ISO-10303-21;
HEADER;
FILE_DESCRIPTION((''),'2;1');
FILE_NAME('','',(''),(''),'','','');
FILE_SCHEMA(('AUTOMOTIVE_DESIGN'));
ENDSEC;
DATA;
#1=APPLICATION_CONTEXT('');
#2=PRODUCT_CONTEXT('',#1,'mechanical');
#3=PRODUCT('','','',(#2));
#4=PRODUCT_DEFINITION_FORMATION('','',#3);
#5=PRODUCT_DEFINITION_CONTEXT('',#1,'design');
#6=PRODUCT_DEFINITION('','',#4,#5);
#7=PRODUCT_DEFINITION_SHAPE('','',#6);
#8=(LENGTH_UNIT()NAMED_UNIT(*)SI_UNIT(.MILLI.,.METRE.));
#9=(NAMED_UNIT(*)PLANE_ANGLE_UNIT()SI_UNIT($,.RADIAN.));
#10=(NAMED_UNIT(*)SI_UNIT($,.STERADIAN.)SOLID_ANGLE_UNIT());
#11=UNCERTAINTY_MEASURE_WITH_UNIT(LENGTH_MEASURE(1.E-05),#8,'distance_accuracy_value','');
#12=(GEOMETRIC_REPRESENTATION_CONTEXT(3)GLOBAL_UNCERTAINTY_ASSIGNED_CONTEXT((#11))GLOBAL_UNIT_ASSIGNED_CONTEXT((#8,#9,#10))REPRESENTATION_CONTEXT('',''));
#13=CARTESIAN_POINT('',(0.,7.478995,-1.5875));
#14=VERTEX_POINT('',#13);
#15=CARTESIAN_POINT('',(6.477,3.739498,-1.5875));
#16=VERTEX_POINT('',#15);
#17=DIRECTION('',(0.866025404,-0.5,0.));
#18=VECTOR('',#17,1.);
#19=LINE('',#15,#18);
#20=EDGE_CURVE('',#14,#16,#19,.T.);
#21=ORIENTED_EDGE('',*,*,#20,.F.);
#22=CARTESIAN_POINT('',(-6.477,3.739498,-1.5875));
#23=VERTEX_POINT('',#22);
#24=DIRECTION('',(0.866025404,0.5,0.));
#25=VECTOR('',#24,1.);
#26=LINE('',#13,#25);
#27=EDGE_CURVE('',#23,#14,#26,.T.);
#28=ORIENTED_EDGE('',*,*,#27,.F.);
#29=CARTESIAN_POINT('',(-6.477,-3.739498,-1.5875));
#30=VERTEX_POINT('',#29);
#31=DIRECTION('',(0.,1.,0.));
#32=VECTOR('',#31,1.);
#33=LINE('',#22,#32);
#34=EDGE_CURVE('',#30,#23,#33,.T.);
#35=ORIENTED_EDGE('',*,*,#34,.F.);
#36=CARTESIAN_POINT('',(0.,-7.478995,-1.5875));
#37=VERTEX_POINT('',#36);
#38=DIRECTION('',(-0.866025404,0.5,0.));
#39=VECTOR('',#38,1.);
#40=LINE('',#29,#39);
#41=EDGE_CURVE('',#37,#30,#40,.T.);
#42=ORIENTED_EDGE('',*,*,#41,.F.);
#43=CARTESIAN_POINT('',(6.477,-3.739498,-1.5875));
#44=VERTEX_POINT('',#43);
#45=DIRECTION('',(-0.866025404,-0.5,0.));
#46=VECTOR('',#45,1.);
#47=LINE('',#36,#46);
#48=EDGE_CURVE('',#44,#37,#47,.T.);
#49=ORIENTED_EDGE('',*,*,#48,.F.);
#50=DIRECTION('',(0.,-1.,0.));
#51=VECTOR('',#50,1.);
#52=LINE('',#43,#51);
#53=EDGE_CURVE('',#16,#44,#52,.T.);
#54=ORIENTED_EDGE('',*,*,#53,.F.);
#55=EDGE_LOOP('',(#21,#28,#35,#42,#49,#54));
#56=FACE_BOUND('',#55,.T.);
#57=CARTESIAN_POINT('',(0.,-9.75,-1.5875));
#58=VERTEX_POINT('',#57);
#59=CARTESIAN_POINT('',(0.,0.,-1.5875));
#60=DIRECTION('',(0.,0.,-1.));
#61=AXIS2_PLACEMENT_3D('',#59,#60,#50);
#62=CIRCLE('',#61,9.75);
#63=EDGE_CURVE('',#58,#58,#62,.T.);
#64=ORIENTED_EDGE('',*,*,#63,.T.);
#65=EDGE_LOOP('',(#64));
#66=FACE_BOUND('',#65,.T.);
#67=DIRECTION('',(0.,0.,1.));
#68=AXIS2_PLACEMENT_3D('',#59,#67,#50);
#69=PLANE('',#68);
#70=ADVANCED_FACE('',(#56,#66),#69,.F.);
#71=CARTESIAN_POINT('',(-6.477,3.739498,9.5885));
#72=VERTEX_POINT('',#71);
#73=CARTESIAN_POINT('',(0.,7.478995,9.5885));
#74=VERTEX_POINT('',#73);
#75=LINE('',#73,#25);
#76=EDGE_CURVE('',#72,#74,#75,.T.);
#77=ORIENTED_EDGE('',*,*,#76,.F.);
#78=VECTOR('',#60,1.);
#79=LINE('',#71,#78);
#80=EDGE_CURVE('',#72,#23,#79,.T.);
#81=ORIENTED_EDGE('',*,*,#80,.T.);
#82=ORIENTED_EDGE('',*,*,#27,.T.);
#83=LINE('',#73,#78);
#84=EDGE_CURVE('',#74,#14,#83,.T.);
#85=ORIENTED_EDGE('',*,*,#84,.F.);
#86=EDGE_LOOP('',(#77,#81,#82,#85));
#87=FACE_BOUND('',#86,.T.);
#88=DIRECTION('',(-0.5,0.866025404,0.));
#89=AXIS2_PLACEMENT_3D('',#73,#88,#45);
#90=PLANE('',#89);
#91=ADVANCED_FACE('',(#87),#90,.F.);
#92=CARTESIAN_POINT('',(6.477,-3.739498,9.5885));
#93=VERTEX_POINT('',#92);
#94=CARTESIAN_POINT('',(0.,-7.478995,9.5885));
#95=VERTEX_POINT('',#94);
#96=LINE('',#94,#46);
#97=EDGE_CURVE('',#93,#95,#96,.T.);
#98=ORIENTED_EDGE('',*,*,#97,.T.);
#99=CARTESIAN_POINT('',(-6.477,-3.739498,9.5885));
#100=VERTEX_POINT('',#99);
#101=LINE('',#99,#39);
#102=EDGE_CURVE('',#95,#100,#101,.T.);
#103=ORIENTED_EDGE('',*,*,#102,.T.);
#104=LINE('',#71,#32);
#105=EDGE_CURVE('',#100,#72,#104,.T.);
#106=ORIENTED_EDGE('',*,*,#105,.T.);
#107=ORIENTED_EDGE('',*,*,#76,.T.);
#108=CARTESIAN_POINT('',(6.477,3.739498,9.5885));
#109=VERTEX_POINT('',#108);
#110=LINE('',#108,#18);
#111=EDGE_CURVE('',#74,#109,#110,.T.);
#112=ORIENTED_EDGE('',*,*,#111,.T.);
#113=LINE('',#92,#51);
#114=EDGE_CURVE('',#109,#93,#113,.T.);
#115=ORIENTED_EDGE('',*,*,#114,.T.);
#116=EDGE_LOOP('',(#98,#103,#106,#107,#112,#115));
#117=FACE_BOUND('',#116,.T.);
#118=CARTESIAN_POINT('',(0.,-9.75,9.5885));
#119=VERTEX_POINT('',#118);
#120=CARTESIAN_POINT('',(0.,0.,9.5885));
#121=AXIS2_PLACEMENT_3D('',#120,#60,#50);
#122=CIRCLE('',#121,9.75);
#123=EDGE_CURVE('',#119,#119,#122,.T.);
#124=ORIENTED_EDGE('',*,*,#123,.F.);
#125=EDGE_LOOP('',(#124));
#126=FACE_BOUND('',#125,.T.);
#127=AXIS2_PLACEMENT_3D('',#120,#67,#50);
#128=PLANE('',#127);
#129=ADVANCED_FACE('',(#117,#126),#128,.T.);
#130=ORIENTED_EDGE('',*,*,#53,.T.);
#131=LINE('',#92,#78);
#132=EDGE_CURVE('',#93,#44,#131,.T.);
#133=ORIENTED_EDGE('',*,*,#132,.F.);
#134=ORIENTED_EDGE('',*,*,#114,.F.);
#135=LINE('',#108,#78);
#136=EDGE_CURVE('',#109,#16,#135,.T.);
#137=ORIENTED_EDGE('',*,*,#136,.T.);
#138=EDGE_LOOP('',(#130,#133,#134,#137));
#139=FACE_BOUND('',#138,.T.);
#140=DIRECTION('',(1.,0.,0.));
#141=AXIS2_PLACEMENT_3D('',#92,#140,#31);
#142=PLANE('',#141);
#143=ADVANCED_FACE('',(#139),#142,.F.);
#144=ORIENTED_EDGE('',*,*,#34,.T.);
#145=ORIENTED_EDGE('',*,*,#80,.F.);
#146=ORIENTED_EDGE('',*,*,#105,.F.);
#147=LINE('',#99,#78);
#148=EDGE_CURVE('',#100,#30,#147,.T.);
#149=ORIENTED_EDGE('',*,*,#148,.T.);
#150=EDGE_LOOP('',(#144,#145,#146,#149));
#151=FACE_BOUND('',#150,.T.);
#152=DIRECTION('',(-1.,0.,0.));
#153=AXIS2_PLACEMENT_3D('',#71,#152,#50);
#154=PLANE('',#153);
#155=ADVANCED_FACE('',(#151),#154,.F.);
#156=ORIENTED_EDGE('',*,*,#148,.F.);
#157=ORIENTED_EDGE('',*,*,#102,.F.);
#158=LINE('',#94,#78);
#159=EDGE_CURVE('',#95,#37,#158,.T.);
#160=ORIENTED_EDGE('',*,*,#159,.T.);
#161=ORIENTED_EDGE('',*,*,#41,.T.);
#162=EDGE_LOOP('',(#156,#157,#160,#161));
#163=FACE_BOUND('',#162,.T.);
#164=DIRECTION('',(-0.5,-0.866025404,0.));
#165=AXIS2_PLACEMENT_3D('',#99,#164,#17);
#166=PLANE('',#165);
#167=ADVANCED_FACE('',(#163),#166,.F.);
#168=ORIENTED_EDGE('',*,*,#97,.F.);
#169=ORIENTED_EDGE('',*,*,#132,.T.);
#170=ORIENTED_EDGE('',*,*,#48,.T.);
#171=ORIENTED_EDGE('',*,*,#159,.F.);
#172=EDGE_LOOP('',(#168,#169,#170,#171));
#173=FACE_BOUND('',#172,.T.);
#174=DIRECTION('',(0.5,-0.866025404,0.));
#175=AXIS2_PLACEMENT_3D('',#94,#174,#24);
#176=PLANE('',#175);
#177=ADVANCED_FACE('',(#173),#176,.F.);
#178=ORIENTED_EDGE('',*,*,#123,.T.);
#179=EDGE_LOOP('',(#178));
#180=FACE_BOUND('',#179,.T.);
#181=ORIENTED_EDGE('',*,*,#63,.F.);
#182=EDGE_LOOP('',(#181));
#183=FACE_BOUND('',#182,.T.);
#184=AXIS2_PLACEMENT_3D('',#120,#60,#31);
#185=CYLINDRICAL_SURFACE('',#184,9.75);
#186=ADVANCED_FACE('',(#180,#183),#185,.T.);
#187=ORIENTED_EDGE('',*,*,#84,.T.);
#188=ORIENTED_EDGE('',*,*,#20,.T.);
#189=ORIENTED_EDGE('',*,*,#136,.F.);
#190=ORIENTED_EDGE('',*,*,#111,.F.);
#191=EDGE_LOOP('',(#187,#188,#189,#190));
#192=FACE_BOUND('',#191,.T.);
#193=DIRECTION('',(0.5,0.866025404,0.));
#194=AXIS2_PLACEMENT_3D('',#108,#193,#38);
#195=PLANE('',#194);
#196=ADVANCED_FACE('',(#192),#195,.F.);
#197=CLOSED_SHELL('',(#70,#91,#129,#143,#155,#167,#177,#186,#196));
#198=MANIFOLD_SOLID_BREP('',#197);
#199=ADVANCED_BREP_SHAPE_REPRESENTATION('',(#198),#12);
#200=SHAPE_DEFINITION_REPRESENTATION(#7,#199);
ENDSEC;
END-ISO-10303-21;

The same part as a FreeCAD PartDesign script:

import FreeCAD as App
import Part
import Sketcher

V = App.Vector
Q = App.Units.Quantity


def add_polygon(sketch, points):
    """Adds a closed chain of lines whose ends are joined by coincident constraints."""
    first, n = sketch.GeometryCount, len(points)
    for a, b in zip(points, points[1:] + points[:1]):
        sketch.addGeometry(Part.LineSegment(App.Vector(*a, 0), App.Vector(*b, 0)), False)
    for i in range(n):
        sketch.addConstraint(Sketcher.Constraint("Coincident", first + i, 2, first + (i + 1) % n, 1))

doc = App.newDocument("Part")
body = doc.addObject("PartDesign::Body", "Body")

# Sketch on XY plane
sketch1 = body.newObject("Sketcher::SketchObject", "Sketch")
sketch1.AttachmentSupport = (doc.getObject("XY_Plane"), [""])
sketch1.MapMode = "FlatFace"
sketch1.AttachmentOffset = App.Placement(V(0, 0, -1.5875), App.Rotation())
sketch1.addGeometry(Part.Circle(V(0, 0, 0), V(0, 0, 1), 10), False)  # 0
add_polygon(sketch1, [(0, 7), (-6, 4), (-6, -4), (0, -7), (6, -4), (6, 4)])  # lines 1-6
sketch1.addConstraint([
    Sketcher.Constraint("Vertical", 2),
    Sketcher.Constraint("Vertical", 5),
    Sketcher.Constraint("Coincident", 0, 3, -1, 1),
    Sketcher.Constraint("Symmetric", 1, 2, 4, 2, -1, 1),
    Sketcher.Constraint("Symmetric", 3, 2, 6, 2, -1, 1),
    Sketcher.Constraint("PointOnObject", 3, 2, -2),
    Sketcher.Constraint("Parallel", 3, 6),
    Sketcher.Constraint("Horizontal", 2, 2, 4, 2),
    Sketcher.Constraint("Diameter", 0, Q("19.5 mm")),
    Sketcher.Constraint("Angle", 1, Q("-150 deg")),
    Sketcher.Constraint("DistanceX", 1, 2, -1, 1, Q("6.477 mm")),
    Sketcher.Constraint("DistanceY", 2, 2, 2, 1, Q("7.478995 mm")),
])
pad1 = body.newObject("PartDesign::Pad", "Pad")
pad1.Profile = sketch1
pad1.Length = 11.176

doc.recompute()
